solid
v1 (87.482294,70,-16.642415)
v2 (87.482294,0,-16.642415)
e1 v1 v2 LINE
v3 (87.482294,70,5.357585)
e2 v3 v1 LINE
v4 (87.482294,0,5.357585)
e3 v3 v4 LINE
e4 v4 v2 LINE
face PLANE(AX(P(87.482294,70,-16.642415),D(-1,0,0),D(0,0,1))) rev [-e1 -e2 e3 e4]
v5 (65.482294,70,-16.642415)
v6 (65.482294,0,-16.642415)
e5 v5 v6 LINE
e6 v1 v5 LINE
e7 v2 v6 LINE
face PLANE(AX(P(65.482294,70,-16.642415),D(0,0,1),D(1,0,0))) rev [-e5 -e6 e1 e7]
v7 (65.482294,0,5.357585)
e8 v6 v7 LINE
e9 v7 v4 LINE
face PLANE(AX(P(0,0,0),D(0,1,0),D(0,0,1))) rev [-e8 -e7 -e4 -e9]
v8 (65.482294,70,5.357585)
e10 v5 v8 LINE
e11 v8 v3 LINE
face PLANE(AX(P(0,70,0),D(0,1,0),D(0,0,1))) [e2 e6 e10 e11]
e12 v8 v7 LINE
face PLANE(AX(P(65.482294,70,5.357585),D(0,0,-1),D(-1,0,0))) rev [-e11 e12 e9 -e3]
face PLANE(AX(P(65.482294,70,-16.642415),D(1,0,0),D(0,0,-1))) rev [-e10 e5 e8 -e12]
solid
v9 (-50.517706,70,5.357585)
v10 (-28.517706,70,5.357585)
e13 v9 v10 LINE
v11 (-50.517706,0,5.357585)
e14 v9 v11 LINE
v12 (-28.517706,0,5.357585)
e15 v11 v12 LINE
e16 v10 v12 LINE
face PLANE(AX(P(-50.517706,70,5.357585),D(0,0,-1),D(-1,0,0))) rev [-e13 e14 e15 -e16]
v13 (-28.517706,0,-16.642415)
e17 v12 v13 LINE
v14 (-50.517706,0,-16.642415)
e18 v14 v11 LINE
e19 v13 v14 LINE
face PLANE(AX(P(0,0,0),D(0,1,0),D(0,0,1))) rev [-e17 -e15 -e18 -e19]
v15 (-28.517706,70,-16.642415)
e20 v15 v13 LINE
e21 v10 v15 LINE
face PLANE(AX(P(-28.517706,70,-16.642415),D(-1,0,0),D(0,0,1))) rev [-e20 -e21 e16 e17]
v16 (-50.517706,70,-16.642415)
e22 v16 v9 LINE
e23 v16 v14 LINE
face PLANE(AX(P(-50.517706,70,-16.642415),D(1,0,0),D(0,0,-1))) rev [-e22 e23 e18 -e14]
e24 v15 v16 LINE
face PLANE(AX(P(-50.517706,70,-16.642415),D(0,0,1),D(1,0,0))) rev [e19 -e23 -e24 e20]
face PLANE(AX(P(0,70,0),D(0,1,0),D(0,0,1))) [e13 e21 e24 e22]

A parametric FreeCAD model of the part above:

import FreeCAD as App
import Part
import Sketcher
from FreeCAD import Vector
Q = App.Units.Quantity

doc = App.newDocument("Part")
body = doc.addObject("PartDesign::Body", "Body")

# Sketch on XZ plane
sketch1 = body.newObject("Sketcher::SketchObject", "Sketch")
sketch1.AttachmentSupport = (doc.getObject("XZ_Plane"), [""])
sketch1.MapMode = "FlatFace"
sketch1.addGeometry(Part.LineSegment(Vector(-51, -17, 0), Vector(-51, 5, 0)), False)
sketch1.addGeometry(Part.LineSegment(Vector(-51, 5, 0), Vector(-29, 5, 0)), False)
sketch1.addGeometry(Part.LineSegment(Vector(-29, 5, 0), Vector(-29, -17, 0)), False)
sketch1.addGeometry(Part.LineSegment(Vector(-29, -17, 0), Vector(-51, -17, 0)), False)
sketch1.addConstraint(Sketcher.Constraint("Coincident", 0, 2, 1, 1))
sketch1.addConstraint(Sketcher.Constraint("Coincident", 1, 2, 2, 1))
sketch1.addConstraint(Sketcher.Constraint("Coincident", 2, 2, 3, 1))
sketch1.addConstraint(Sketcher.Constraint("Coincident", 3, 2, 0, 1))
sketch1.addConstraint(Sketcher.Constraint("Vertical", 0))
sketch1.addConstraint(Sketcher.Constraint("Horizontal", 1))
sketch1.addConstraint(Sketcher.Constraint("Vertical", 2))
sketch1.addConstraint(Sketcher.Constraint("Horizontal", 3))
sketch1.addConstraint(Sketcher.Constraint("Equal", 3, 0))
sketch1.addConstraint(Sketcher.Constraint("DistanceX", 1, 1, 1, 2, Q("22 mm")))
sketch1.addConstraint(Sketcher.Constraint("DistanceX", 0, 2, -1, 1, Q("50.517706 mm")))
sketch1.addConstraint(Sketcher.Constraint("DistanceY", -1, 1, 0, 2, Q("5.357585 mm")))
pad1 = body.newObject("PartDesign::Pad", "Pad")
pad1.Profile = sketch1
pad1.Length = 70
pad1.Reversed = True
body2 = doc.addObject("PartDesign::Body", "Body001")

# Sketch on XZ plane
sketch2 = body2.newObject("Sketcher::SketchObject", "Sketch001")
sketch2.AttachmentSupport = (doc.getObject("XZ_Plane001"), [""])
sketch2.MapMode = "FlatFace"
sketch2.addGeometry(Part.LineSegment(Vector(65, -17, 0), Vector(65, 5, 0)), False)
sketch2.addGeometry(Part.LineSegment(Vector(65, 5, 0), Vector(87, 5, 0)), False)
sketch2.addGeometry(Part.LineSegment(Vector(87, 5, 0), Vector(87, -17, 0)), False)
sketch2.addGeometry(Part.LineSegment(Vector(87, -17, 0), Vector(65, -17, 0)), False)
sketch2.addConstraint(Sketcher.Constraint("Coincident", 0, 2, 1, 1))
sketch2.addConstraint(Sketcher.Constraint("Coincident", 1, 2, 2, 1))
sketch2.addConstraint(Sketcher.Constraint("Coincident", 2, 2, 3, 1))
sketch2.addConstraint(Sketcher.Constraint("Coincident", 3, 2, 0, 1))
sketch2.addConstraint(Sketcher.Constraint("Vertical", 0))
sketch2.addConstraint(Sketcher.Constraint("Horizontal", 1))
sketch2.addConstraint(Sketcher.Constraint("Vertical", 2))
sketch2.addConstraint(Sketcher.Constraint("Horizontal", 3))
sketch2.addConstraint(Sketcher.Constraint("Equal", 3, 0))
sketch2.addConstraint(Sketcher.Constraint("DistanceX", 1, 1, 1, 2, Q("22 mm")))
sketch2.addConstraint(Sketcher.Constraint("DistanceX", -1, 1, 0, 2, Q("65.482294 mm")))
sketch2.addConstraint(Sketcher.Constraint("DistanceY", -1, 1, 0, 2, Q("5.357585 mm")))
pad2 = body2.newObject("PartDesign::Pad", "Pad001")
pad2.Profile = sketch2
pad2.Length = 70
pad2.Reversed = True

doc.recompute()
